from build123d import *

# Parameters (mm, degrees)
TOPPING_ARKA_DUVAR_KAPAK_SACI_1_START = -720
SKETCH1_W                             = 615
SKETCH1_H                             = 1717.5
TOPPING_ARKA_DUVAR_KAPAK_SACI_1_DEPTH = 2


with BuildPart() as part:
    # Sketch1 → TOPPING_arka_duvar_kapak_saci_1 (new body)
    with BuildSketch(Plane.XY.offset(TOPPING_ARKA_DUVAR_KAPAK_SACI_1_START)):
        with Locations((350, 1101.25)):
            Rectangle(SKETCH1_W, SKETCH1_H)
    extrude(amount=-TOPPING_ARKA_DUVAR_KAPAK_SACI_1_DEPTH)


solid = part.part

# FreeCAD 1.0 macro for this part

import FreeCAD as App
import Part
import Sketcher
Q = App.Units.Quantity

doc = App.newDocument("Part")
body = doc.addObject("PartDesign::Body", "Body")

# Sketch on XY plane
sketch1 = body.newObject("Sketcher::SketchObject", "Sketch")
sketch1.AttachmentSupport = (doc.getObject("XY_Plane"), [""])
sketch1.MapMode = "FlatFace"
sketch1.AttachmentOffset = App.Placement(App.Vector(0, 0, -720), App.Rotation())
sketch1.addGeometry([
    Part.LineSegment(App.Vector(42, 1960, 0), App.Vector(42, 242, 0)),
    Part.LineSegment(App.Vector(42, 242, 0), App.Vector(658, 242, 0)),
    Part.LineSegment(App.Vector(658, 242, 0), App.Vector(658, 1960, 0)),
    Part.LineSegment(App.Vector(658, 1960, 0), App.Vector(42, 1960, 0)),
], False)
sketch1.addConstraint([
    Sketcher.Constraint("Coincident", 0, 2, 1, 1),
    Sketcher.Constraint("Coincident", 1, 2, 2, 1),
    Sketcher.Constraint("Coincident", 2, 2, 3, 1),
    Sketcher.Constraint("Coincident", 3, 2, 0, 1),
    Sketcher.Constraint("Vertical", 0),
    Sketcher.Constraint("Horizontal", 1),
    Sketcher.Constraint("Vertical", 2),
    Sketcher.Constraint("Horizontal", 3),
    Sketcher.Constraint("DistanceX", 1, 1, 1, 2, Q("615 mm")),
    Sketcher.Constraint("DistanceY", 0, 2, 0, 1, Q("1717.5 mm")),
    Sketcher.Constraint("DistanceY", -1, 1, 2, 2, Q("1960 mm")),
    Sketcher.Constraint("DistanceX", -1, 1, 0, 2, Q("42.5 mm")),
])
pad1 = body.newObject("PartDesign::Pad", "Pad")
pad1.Profile = sketch1
pad1.Length = 2
pad1.Reversed = True

doc.recompute()
